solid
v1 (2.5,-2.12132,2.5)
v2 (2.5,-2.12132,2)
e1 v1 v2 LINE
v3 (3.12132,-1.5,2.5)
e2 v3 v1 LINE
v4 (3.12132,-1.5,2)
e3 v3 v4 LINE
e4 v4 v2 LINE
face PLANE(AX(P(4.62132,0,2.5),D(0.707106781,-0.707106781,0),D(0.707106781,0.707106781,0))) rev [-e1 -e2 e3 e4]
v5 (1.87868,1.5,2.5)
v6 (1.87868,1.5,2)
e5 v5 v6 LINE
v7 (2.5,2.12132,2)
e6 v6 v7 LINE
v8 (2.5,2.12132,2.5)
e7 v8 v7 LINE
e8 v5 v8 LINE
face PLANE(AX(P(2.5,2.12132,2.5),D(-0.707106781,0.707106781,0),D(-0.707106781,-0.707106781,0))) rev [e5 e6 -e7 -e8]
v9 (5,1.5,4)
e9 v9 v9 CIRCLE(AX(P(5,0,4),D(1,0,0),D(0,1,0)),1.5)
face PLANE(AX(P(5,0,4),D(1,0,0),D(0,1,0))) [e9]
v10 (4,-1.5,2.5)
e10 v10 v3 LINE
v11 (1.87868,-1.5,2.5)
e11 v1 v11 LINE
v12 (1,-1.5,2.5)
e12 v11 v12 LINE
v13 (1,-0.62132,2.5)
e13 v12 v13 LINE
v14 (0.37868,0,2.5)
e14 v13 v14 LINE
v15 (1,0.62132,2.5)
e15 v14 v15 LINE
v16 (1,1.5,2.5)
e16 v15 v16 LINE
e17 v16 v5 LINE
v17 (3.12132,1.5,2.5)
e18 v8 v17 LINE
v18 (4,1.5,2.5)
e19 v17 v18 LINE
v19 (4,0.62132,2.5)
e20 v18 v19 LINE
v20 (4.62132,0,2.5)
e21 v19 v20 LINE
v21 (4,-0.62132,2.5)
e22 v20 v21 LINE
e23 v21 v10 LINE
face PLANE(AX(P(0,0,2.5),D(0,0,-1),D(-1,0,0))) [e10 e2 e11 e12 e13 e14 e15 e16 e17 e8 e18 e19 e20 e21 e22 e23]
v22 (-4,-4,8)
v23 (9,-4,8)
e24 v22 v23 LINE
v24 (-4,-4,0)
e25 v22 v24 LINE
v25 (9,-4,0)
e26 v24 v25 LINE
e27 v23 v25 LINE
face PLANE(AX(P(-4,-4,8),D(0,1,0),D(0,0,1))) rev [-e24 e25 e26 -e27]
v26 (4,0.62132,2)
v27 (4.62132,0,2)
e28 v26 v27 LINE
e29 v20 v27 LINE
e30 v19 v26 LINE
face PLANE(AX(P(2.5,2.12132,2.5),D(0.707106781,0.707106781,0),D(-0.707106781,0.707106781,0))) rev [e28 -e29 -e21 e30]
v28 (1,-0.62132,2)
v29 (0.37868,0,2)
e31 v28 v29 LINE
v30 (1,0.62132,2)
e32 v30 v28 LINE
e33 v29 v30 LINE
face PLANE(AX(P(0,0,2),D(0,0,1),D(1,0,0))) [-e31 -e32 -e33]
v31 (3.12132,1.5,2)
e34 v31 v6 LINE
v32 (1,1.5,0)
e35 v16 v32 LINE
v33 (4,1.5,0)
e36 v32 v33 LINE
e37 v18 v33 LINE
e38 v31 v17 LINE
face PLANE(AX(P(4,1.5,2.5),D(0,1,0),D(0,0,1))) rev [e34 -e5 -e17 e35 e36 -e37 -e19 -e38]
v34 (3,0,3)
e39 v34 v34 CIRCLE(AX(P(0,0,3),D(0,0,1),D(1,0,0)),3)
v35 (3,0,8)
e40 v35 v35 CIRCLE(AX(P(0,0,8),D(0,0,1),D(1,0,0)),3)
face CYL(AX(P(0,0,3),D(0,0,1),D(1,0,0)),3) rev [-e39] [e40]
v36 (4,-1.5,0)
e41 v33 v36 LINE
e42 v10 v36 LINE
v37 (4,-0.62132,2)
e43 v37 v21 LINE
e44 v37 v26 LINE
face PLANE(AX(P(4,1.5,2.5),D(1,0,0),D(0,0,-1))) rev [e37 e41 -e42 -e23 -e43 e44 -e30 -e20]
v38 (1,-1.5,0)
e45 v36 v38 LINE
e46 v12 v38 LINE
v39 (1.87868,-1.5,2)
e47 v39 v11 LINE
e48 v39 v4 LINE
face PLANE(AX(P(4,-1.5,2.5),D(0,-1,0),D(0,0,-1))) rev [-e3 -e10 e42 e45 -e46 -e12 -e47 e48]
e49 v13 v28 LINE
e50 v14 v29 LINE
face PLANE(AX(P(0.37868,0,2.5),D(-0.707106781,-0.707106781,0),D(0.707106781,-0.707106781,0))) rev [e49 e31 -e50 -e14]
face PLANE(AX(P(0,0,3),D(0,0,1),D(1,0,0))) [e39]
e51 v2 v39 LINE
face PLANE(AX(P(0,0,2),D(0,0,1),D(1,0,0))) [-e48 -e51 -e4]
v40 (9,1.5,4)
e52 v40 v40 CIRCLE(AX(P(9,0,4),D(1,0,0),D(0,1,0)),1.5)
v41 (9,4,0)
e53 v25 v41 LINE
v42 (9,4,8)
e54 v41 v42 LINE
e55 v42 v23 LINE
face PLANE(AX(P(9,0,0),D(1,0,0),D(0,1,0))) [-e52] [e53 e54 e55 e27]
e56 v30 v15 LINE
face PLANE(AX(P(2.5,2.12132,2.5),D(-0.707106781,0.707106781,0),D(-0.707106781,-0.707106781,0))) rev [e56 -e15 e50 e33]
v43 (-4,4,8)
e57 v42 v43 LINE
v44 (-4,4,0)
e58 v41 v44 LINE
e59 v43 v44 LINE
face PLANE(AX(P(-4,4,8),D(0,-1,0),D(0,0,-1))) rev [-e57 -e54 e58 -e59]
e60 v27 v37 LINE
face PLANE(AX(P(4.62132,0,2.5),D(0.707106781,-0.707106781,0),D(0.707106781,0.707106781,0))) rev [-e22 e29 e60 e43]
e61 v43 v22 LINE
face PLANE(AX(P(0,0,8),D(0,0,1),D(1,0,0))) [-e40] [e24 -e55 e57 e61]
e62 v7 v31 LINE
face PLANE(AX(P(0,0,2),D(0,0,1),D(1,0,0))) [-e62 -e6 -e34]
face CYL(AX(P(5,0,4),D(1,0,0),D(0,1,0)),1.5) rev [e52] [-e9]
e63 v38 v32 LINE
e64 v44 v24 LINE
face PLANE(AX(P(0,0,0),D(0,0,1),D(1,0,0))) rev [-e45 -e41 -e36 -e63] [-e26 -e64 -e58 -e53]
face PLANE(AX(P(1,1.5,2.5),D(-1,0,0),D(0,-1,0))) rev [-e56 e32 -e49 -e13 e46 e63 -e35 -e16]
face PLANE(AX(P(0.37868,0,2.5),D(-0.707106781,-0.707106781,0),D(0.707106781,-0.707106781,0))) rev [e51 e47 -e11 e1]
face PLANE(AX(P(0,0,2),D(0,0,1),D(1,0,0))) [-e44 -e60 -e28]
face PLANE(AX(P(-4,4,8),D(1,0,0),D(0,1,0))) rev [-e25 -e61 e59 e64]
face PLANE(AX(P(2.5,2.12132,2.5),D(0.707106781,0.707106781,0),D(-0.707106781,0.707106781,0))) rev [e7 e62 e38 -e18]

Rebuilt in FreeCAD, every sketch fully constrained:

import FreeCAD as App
import Part
import Sketcher
Q = App.Units.Quantity

doc = App.newDocument("Part")
body = doc.addObject("PartDesign::Body", "Body")

# Sketch on XY plane
sketch1 = body.newObject("Sketcher::SketchObject", "Sketch")
sketch1.AttachmentSupport = (doc.getObject("XY_Plane"), [""])
sketch1.MapMode = "FlatFace"
sketch1.addGeometry([
    Part.LineSegment(App.Vector(-4, 4, 0), App.Vector(-4, -4, 0)),
    Part.LineSegment(App.Vector(-4, -4, 0), App.Vector(4, -4, 0)),
    Part.LineSegment(App.Vector(4, -4, 0), App.Vector(4, 4, 0)),
    Part.LineSegment(App.Vector(4, 4, 0), App.Vector(-4, 4, 0)),
], False)
sketch1.addConstraint([
    Sketcher.Constraint("Coincident", 0, 2, 1, 1),
    Sketcher.Constraint("Coincident", 1, 2, 2, 1),
    Sketcher.Constraint("Coincident", 2, 2, 3, 1),
    Sketcher.Constraint("Coincident", 3, 2, 0, 1),
    Sketcher.Constraint("Vertical", 0),
    Sketcher.Constraint("Horizontal", 1),
    Sketcher.Constraint("Vertical", 2),
    Sketcher.Constraint("Horizontal", 3),
    Sketcher.Constraint("Symmetric", 0, 2, 2, 2, -1, 1),
    Sketcher.Constraint("Equal", 3, 0),
    Sketcher.Constraint("DistanceX", 1, 1, 1, 2, Q("8 mm")),
])
pad1 = body.newObject("PartDesign::Pad", "Pad")
pad1.Profile = sketch1
pad1.Length = 8

# Sketch on XY plane
sketch2 = body.newObject("Sketcher::SketchObject", "Sketch001")
sketch2.AttachmentSupport = (doc.getObject("XY_Plane"), [""])
sketch2.MapMode = "FlatFace"
sketch2.AttachmentOffset = App.Placement(App.Vector(0, 0, 8), App.Rotation())
sketch2.addGeometry(Part.Circle(App.Vector(0, 0, 0), App.Vector(0, 0, 1), 3), False)
sketch2.addConstraint([
    Sketcher.Constraint("Coincident", 0, 3, -1, 1),
    Sketcher.Constraint("Diameter", 0, Q("6 mm")),
])
pocket1 = body.newObject("PartDesign::Pocket", "Pocket")
pocket1.Profile = sketch2
pocket1.Length = 5

# Sketch on YZ plane
sketch3 = body.newObject("Sketcher::SketchObject", "Sketch002")
sketch3.AttachmentSupport = (doc.getObject("YZ_Plane"), [""])
sketch3.MapMode = "FlatFace"
sketch3.AttachmentOffset = App.Placement(App.Vector(0, 0, 4), App.Rotation())
sketch3.addGeometry([
    Part.LineSegment(App.Vector(4, 8, 0), App.Vector(-4, 8, 0)),
    Part.LineSegment(App.Vector(-4, 8, 0), App.Vector(-4, 0, 0)),
    Part.LineSegment(App.Vector(-4, 0, 0), App.Vector(4, 0, 0)),
    Part.LineSegment(App.Vector(4, 0, 0), App.Vector(4, 8, 0)),
], False)
sketch3.addConstraint([
    Sketcher.Constraint("Coincident", 0, 2, 1, 1),
    Sketcher.Constraint("Coincident", 1, 2, 2, 1),
    Sketcher.Constraint("Coincident", 2, 2, 3, 1),
    Sketcher.Constraint("Coincident", 3, 2, 0, 1),
    Sketcher.Constraint("Horizontal", 0),
    Sketcher.Constraint("Vertical", 1),
    Sketcher.Constraint("Horizontal", 2),
    Sketcher.Constraint("Vertical", 3),
    Sketcher.Constraint("Symmetric", 1, 2, 2, 2, -1, 1),
    Sketcher.Constraint("Equal", 2, 1),
    Sketcher.Constraint("DistanceX", 0, 2, 0, 1, Q("8 mm")),
])
pad2 = body.newObject("PartDesign::Pad", "Pad001")
pad2.Profile = sketch3
pad2.Length = 5

# Sketch on YZ plane
sketch4 = body.newObject("Sketcher::SketchObject", "Sketch003")
sketch4.AttachmentSupport = (doc.getObject("YZ_Plane"), [""])
sketch4.MapMode = "FlatFace"
sketch4.AttachmentOffset = App.Placement(App.Vector(0, 0, 9), App.Rotation())
sketch4.addGeometry(Part.Circle(App.Vector(0, 4, 0), App.Vector(0, 0, 1), 1.5), False)
sketch4.addConstraint([
    Sketcher.Constraint("PointOnObject", 0, 3, -2),
    Sketcher.Constraint("Diameter", 0, Q("3 mm")),
    Sketcher.Constraint("DistanceY", -1, 1, 0, 3, Q("4 mm")),
])
pocket2 = body.newObject("PartDesign::Pocket", "Pocket001")
pocket2.Profile = sketch4
pocket2.Length = 4

# Sketch on XY plane
sketch5 = body.newObject("Sketcher::SketchObject", "Sketch004")
sketch5.AttachmentSupport = (doc.getObject("XY_Plane"), [""])
sketch5.MapMode = "FlatFace"
sketch5.addGeometry([
    Part.LineSegment(App.Vector(0.4, 0, 0), App.Vector(2.5, 2.1, 0)),
    Part.LineSegment(App.Vector(2.5, 2.1, 0), App.Vector(4.6, 0, 0)),
    Part.LineSegment(App.Vector(4.6, 0, 0), App.Vector(2.5, -2.1, 0)),
    Part.LineSegment(App.Vector(2.5, -2.1, 0), App.Vector(0.4, 0, 0)),
], False)
sketch5.addConstraint([
    Sketcher.Constraint("Coincident", 0, 2, 1, 1),
    Sketcher.Constraint("Coincident", 1, 2, 2, 1),
    Sketcher.Constraint("Coincident", 2, 2, 3, 1),
    Sketcher.Constraint("Coincident", 3, 2, 0, 1),
    Sketcher.Constraint("Symmetric", 0, 2, 2, 2, -1),
    Sketcher.Constraint("PointOnObject", 1, 2, -1),
    Sketcher.Constraint("PointOnObject", 3, 2, -1),
    Sketcher.Constraint("Perpendicular", 0, 1),
    Sketcher.Constraint("Perpendicular", 1, 2),
    Sketcher.Constraint("Distance", 0, Q("3 mm")),
    Sketcher.Constraint("DistanceX", -1, 1, 0, 2, Q("2.5 mm")),
])
pocket3 = body.newObject("PartDesign::Pocket", "Pocket002")
pocket3.Profile = sketch5
pocket3.Length = 2.5
pocket3.Reversed = True

# Sketch on XY plane
sketch6 = body.newObject("Sketcher::SketchObject", "Sketch005")
sketch6.AttachmentSupport = (doc.getObject("XY_Plane"), [""])
sketch6.MapMode = "FlatFace"
sketch6.addGeometry([
    Part.LineSegment(App.Vector(2.5, 2.1, 0), App.Vector(4.6, 0, 0)),
    Part.LineSegment(App.Vector(4.6, 0, 0), App.Vector(2.5, -2.1, 0)),
    Part.LineSegment(App.Vector(2.5, -2.1, 0), App.Vector(0.4, 0, 0)),
    Part.LineSegment(App.Vector(0.4, 0, 0), App.Vector(2.5, 2.1, 0)),
], False)
sketch6.addConstraint([
    Sketcher.Constraint("Coincident", 0, 2, 1, 1),
    Sketcher.Constraint("Coincident", 1, 2, 2, 1),
    Sketcher.Constraint("Coincident", 2, 2, 3, 1),
    Sketcher.Constraint("Coincident", 3, 2, 0, 1),
    Sketcher.Constraint("Symmetric", 1, 2, 3, 2, -1),
    Sketcher.Constraint("PointOnObject", 0, 2, -1),
    Sketcher.Constraint("PointOnObject", 2, 2, -1),
    Sketcher.Constraint("Perpendicular", 0, 1),
    Sketcher.Constraint("Perpendicular", 1, 2),
    Sketcher.Constraint("Distance", 0, Q("3 mm")),
    Sketcher.Constraint("DistanceX", -1, 1, 1, 2, Q("2.5 mm")),
])
pad3 = body.newObject("PartDesign::Pad", "Pad002")
pad3.Profile = sketch6
pad3.Length = 2

# Sketch on XY plane
sketch7 = body.newObject("Sketcher::SketchObject", "Sketch006")
sketch7.AttachmentSupport = (doc.getObject("XY_Plane"), [""])
sketch7.MapMode = "FlatFace"
sketch7.addGeometry([
    Part.LineSegment(App.Vector(5.1, 2.7, 0), App.Vector(6.5, 0, 0)),
    Part.LineSegment(App.Vector(6.5, 0, 0), App.Vector(3.8, -1.3, 0)),
    Part.LineSegment(App.Vector(3.8, -1.3, 0), App.Vector(2.5, 1.3, 0)),
    Part.LineSegment(App.Vector(2.5, 1.3, 0), App.Vector(5.1, 2.7, 0)),
], False)
sketch7.addConstraint([
    Sketcher.Constraint("Coincident", 0, 2, 1, 1),
    Sketcher.Constraint("Coincident", 1, 2, 2, 1),
    Sketcher.Constraint("Coincident", 2, 2, 3, 1),
    Sketcher.Constraint("Coincident", 3, 2, 0, 1),
    Sketcher.Constraint("PointOnObject", 0, 2, -1),
    Sketcher.Constraint("Perpendicular", 0, 1),
    Sketcher.Constraint("Perpendicular", 1, 2),
    Sketcher.Constraint("Perpendicular", 2, 3),
    Sketcher.Constraint("Equal", 0, 1),
    Sketcher.Constraint("Distance", 0, Q("3 mm")),
    Sketcher.Constraint("DistanceX", -1, 1, 0, 2, Q("6.487359 mm")),
    Sketcher.Constraint("DistanceX", -1, 1, 1, 2, Q("3.802592 mm")),
])
pocket4 = body.newObject("PartDesign::Pocket", "Pocket003")
pocket4.Profile = sketch7
pocket4.Length = 1
pocket4.Reversed = True

# Sketch on XY plane
sketch8 = body.newObject("Sketcher::SketchObject", "Sketch007")
sketch8.AttachmentSupport = (doc.getObject("XY_Plane"), [""])
sketch8.MapMode = "FlatFace"
sketch8.addGeometry([
    Part.LineSegment(App.Vector(2.5, 1.3, 0), App.Vector(5.1, 2.7, 0)),
    Part.LineSegment(App.Vector(5.1, 2.7, 0), App.Vector(6.5, 0, 0)),
    Part.LineSegment(App.Vector(6.5, 0, 0), App.Vector(3.8, -1.3, 0)),
    Part.LineSegment(App.Vector(3.8, -1.3, 0), App.Vector(2.5, 1.3, 0)),
], False)
sketch8.addConstraint([
    Sketcher.Constraint("Coincident", 0, 2, 1, 1),
    Sketcher.Constraint("Coincident", 1, 2, 2, 1),
    Sketcher.Constraint("Coincident", 2, 2, 3, 1),
    Sketcher.Constraint("Coincident", 3, 2, 0, 1),
    Sketcher.Constraint("PointOnObject", 1, 2, -1),
    Sketcher.Constraint("Perpendicular", 0, 1),
    Sketcher.Constraint("Perpendicular", 1, 2),
    Sketcher.Constraint("Perpendicular", 2, 3),
    Sketcher.Constraint("Equal", 0, 1),
    Sketcher.Constraint("Distance", 0, Q("3 mm")),
    Sketcher.Constraint("DistanceX", -1, 1, 1, 2, Q("6.487359 mm")),
    Sketcher.Constraint("DistanceX", -1, 1, 2, 2, Q("3.802592 mm")),
])
pad4 = body.newObject("PartDesign::Pad", "Pad003")
pad4.Profile = sketch8
pad4.Length = 2

# Sketch on XY plane
sketch9 = body.newObject("Sketcher::SketchObject", "Sketch008")
sketch9.AttachmentSupport = (doc.getObject("XY_Plane"), [""])
sketch9.MapMode = "FlatFace"
sketch9.addGeometry([
    Part.LineSegment(App.Vector(4, 1.5, 0), App.Vector(4, -1.5, 0)),
    Part.LineSegment(App.Vector(4, -1.5, 0), App.Vector(1, -1.5, 0)),
    Part.LineSegment(App.Vector(1, -1.5, 0), App.Vector(1, 1.5, 0)),
    Part.LineSegment(App.Vector(1, 1.5, 0), App.Vector(4, 1.5, 0)),
], False)
sketch9.addConstraint([
    Sketcher.Constraint("Coincident", 0, 2, 1, 1),
    Sketcher.Constraint("Coincident", 1, 2, 2, 1),
    Sketcher.Constraint("Coincident", 2, 2, 3, 1),
    Sketcher.Constraint("Coincident", 3, 2, 0, 1),
    Sketcher.Constraint("Vertical", 0),
    Sketcher.Constraint("Horizontal", 1),
    Sketcher.Constraint("Vertical", 2),
    Sketcher.Constraint("Horizontal", 3),
    Sketcher.Constraint("Equal", 3, 0),
    Sketcher.Constraint("DistanceX", 1, 2, 1, 1, Q("3 mm")),
    Sketcher.Constraint("DistanceX", -1, 1, 0, 2, Q("4 mm")),
    Sketcher.Constraint("DistanceY", 0, 2, -1, 1, Q("1.5 mm")),
])
pocket5 = body.newObject("PartDesign::Pocket", "Pocket004")
pocket5.Profile = sketch9
pocket5.Length = 2.5
pocket5.Reversed = True

doc.recompute()
